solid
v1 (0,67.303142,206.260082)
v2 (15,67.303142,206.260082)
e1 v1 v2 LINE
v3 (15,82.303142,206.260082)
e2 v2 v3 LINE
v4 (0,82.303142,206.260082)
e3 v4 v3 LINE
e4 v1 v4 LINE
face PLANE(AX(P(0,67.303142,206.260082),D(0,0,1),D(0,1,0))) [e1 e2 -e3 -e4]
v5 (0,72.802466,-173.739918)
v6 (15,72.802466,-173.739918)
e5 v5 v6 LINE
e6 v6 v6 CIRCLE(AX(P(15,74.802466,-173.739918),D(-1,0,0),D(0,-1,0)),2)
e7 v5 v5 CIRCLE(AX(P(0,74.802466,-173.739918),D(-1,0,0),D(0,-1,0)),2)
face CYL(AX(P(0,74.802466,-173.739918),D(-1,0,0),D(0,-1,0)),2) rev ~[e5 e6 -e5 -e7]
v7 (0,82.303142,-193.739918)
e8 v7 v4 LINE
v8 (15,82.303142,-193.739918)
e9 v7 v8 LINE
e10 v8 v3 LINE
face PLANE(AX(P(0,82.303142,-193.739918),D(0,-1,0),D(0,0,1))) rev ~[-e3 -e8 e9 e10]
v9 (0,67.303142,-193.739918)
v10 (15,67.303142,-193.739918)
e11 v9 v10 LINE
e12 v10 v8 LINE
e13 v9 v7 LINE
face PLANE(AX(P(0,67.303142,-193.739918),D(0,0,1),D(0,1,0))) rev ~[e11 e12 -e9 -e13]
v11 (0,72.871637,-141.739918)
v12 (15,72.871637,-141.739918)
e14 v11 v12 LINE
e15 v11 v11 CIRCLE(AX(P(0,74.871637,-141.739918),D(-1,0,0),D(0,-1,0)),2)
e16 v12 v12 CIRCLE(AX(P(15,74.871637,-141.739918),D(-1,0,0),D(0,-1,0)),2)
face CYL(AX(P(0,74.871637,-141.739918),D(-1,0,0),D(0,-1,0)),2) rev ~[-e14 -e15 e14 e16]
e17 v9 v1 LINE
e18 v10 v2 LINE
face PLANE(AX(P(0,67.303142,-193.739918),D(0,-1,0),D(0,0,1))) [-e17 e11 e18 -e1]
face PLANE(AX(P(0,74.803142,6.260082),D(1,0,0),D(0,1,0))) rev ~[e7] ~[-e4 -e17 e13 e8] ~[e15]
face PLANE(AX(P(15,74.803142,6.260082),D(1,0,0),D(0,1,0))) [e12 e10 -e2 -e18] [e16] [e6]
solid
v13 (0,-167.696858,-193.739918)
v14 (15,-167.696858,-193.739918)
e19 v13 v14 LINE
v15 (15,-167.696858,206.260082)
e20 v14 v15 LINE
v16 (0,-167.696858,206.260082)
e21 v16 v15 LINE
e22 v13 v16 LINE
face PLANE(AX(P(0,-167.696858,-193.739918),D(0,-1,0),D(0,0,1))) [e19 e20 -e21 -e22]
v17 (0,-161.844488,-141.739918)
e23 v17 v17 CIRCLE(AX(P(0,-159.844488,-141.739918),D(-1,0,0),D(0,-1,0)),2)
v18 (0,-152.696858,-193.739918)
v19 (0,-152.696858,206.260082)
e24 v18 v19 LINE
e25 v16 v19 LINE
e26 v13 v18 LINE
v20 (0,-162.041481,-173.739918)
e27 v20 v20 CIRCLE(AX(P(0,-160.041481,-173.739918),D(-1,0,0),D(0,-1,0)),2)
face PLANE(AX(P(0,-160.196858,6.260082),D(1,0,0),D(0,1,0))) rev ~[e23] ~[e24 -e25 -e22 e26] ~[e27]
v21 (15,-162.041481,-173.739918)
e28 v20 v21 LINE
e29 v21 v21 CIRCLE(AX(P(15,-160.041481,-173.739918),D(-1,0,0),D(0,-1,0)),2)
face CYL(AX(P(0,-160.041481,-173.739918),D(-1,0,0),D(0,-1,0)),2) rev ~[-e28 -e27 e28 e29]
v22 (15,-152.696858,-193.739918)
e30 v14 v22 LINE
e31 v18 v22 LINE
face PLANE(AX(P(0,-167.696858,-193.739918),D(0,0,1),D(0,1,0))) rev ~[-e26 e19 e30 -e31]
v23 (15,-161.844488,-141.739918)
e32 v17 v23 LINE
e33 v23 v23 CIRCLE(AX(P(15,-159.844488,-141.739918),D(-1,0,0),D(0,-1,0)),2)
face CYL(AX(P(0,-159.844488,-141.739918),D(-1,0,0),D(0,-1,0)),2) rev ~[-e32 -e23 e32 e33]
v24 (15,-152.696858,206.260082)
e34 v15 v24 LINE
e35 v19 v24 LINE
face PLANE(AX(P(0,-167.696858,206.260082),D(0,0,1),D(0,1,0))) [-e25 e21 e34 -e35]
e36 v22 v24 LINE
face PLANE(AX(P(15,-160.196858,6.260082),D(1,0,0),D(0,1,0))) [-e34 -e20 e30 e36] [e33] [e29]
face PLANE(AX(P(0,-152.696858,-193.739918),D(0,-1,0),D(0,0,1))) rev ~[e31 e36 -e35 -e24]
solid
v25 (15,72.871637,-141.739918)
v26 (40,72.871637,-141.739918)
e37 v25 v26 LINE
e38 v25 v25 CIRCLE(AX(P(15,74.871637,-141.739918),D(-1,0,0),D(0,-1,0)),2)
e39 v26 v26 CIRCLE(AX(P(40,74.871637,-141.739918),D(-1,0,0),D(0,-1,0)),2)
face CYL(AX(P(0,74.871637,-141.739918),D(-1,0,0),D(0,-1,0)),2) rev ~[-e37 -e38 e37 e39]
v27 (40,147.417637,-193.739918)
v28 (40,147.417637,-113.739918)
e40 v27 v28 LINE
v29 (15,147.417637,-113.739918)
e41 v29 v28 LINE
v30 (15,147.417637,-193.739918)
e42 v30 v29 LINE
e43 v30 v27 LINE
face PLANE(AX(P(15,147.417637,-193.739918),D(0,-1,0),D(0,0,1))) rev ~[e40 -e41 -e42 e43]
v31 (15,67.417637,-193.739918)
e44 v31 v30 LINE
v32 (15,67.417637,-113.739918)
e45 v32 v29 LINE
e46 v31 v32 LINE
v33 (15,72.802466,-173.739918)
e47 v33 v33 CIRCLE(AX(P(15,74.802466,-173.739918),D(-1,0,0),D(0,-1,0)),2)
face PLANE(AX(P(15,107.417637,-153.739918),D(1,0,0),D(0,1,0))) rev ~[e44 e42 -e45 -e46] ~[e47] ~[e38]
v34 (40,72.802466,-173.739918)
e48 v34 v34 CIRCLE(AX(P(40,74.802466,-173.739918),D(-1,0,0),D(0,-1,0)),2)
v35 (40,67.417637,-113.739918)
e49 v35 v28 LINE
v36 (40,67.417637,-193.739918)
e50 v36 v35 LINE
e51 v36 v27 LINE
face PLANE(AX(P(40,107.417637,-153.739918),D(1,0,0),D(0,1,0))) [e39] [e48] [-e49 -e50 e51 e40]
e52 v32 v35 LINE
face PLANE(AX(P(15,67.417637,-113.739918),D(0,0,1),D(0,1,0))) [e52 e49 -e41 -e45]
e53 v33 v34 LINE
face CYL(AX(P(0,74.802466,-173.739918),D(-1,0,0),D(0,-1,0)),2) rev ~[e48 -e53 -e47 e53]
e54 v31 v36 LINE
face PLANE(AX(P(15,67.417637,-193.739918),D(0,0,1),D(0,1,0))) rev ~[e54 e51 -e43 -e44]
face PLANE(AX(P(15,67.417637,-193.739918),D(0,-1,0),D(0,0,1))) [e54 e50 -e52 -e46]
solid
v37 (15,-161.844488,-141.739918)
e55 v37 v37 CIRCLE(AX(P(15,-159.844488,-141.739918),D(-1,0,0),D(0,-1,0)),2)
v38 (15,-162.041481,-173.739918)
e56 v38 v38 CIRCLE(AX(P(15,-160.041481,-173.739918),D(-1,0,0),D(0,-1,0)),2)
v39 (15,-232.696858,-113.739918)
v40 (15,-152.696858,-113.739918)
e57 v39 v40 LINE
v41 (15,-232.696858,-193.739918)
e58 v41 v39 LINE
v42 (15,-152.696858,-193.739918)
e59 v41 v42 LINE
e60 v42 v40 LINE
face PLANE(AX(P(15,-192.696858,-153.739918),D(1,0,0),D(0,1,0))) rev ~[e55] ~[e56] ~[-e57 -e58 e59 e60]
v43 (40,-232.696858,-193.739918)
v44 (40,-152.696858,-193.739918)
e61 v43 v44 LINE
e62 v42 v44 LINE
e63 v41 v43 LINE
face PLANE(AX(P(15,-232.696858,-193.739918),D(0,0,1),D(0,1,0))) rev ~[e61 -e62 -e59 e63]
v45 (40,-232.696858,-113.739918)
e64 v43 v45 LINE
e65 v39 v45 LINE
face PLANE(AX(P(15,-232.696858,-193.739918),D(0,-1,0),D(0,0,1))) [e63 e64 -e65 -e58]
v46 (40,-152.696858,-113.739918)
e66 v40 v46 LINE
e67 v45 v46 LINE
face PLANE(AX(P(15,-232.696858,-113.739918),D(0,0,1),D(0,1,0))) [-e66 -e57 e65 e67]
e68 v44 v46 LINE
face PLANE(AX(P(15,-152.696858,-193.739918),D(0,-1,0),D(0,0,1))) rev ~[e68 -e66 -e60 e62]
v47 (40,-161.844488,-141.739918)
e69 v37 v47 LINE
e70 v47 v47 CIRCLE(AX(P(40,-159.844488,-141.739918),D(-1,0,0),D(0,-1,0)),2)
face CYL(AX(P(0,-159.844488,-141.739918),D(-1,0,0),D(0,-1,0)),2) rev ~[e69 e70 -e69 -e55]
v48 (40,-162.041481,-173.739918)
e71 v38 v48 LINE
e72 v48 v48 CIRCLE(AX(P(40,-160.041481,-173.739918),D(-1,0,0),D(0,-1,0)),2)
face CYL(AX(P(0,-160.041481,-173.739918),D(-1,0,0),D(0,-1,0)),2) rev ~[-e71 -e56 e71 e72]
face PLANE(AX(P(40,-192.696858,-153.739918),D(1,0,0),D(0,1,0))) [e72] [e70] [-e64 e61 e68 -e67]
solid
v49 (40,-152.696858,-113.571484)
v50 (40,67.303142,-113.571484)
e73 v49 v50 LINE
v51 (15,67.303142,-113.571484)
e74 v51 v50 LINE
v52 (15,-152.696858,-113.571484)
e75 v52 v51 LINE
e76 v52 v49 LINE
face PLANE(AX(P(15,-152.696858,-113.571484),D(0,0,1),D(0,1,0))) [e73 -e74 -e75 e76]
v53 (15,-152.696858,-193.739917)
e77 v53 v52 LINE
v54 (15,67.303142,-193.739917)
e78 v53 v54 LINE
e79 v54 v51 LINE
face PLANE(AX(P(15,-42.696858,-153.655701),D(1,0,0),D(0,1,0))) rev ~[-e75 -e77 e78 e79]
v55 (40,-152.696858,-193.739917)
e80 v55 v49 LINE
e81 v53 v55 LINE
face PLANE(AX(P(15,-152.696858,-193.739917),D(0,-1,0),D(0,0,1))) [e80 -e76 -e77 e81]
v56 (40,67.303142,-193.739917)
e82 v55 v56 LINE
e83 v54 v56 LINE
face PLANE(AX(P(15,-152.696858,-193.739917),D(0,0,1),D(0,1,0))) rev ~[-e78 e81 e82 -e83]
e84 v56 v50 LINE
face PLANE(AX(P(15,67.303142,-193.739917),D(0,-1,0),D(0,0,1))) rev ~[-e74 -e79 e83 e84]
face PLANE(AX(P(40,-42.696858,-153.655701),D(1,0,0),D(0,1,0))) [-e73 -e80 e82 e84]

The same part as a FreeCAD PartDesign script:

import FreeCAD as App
import Part
import Sketcher

V = App.Vector
Q = App.Units.Quantity

doc = App.newDocument("Part")
body = doc.addObject("PartDesign::Body", "Body")
body.AllowCompound = True

# Sketch on YZ plane
sketch1 = doc.addObject("Sketcher::SketchObject", "Sketch")
body.addObject(sketch1)
sketch1.AttachmentSupport = (doc.YZ_Plane, [""])
sketch1.MapMode = "FlatFace"
sketch1.addGeometry([
    Part.LineSegment(V(-167.696858, 206.260082, 0), V(-167.696858, -193.739918, 0)),  # 0
    Part.LineSegment(V(-167.696858, -193.739918, 0), V(-152.696858, -193.739918, 0)),  # 1
    Part.LineSegment(V(-152.696858, -193.739918, 0), V(-152.696858, 206.260082, 0)),  # 2
    Part.LineSegment(V(-152.696858, 206.260082, 0), V(-167.696858, 206.260082, 0)),  # 3
    Part.LineSegment(V(67.303142, 206.260082, 0), V(67.303142, -193.739918, 0)),  # 4
    Part.LineSegment(V(67.303142, -193.739918, 0), V(82.303142, -193.739918, 0)),  # 5
    Part.LineSegment(V(82.303142, -193.739918, 0), V(82.303142, 206.260082, 0)),  # 6
    Part.LineSegment(V(82.303142, 206.260082, 0), V(67.303142, 206.260082, 0)),  # 7
], False)
sketch1.addConstraint([
    Sketcher.Constraint("Coincident", 0, 2, 1, 1),
    Sketcher.Constraint("Coincident", 1, 2, 2, 1),
    Sketcher.Constraint("Coincident", 2, 2, 3, 1),
    Sketcher.Constraint("Coincident", 3, 2, 0, 1),
    Sketcher.Constraint("Coincident", 4, 2, 5, 1),
    Sketcher.Constraint("Coincident", 5, 2, 6, 1),
    Sketcher.Constraint("Coincident", 6, 2, 7, 1),
    Sketcher.Constraint("Coincident", 7, 2, 4, 1),
    Sketcher.Constraint("Vertical", 0),
    Sketcher.Constraint("Horizontal", 1),
    Sketcher.Constraint("Vertical", 2),
    Sketcher.Constraint("Horizontal", 3),
    Sketcher.Constraint("Vertical", 4),
    Sketcher.Constraint("Horizontal", 5),
    Sketcher.Constraint("Vertical", 6),
    Sketcher.Constraint("Horizontal", 7),
    Sketcher.Constraint("Horizontal", 1, 2, 4, 2),
    Sketcher.Constraint("Horizontal", 3, 2, 6, 2),
    Sketcher.Constraint("Equal", 3, 5),
    Sketcher.Constraint("DistanceX", 1, 1, 1, 2, Q("15 mm")),
    Sketcher.Constraint("DistanceY", 0, 2, 0, 1, Q("400 mm")),
    Sketcher.Constraint("DistanceX", 1, 2, 4, 2, Q("220 mm")),
    Sketcher.Constraint("DistanceX", 0, 2, -1, 1, Q("167.696858 mm")),
    Sketcher.Constraint("DistanceY", 0, 2, -1, 1, Q("193.739918 mm")),
])
pad1 = doc.addObject("PartDesign::Pad", "Pad")
body.addObject(pad1)
pad1.Profile = sketch1
pad1.Length = 15
body2 = doc.addObject("PartDesign::Body", "Body001")

# Sketch on YZ plane
sketch2 = doc.addObject("Sketcher::SketchObject", "Sketch001")
body2.addObject(sketch2)
sketch2.AttachmentSupport = (doc.getObject("YZ_Plane001"), [""])
sketch2.MapMode = "FlatFace"
sketch2.AttachmentOffset = App.Placement(V(0, 0, 15), App.Rotation())
sketch2.addGeometry([
    Part.LineSegment(V(-152.696858, -113.571484, 0), V(-152.696858, -193.739917, 0)),
    Part.LineSegment(V(-152.696858, -193.739917, 0), V(67.303142, -193.739917, 0)),
    Part.LineSegment(V(67.303142, -193.739917, 0), V(67.303142, -113.571484, 0)),
    Part.LineSegment(V(67.303142, -113.571484, 0), V(-152.696858, -113.571484, 0)),
], False)
sketch2.addConstraint([
    Sketcher.Constraint("Coincident", 0, 2, 1, 1),
    Sketcher.Constraint("Coincident", 1, 2, 2, 1),
    Sketcher.Constraint("Coincident", 2, 2, 3, 1),
    Sketcher.Constraint("Coincident", 3, 2, 0, 1),
    Sketcher.Constraint("Vertical", 0),
    Sketcher.Constraint("Horizontal", 1),
    Sketcher.Constraint("Vertical", 2),
    Sketcher.Constraint("Horizontal", 3),
    Sketcher.Constraint("DistanceX", 1, 1, 1, 2, Q("220 mm")),
    Sketcher.Constraint("DistanceY", 0, 2, 0, 1, Q("80.168433 mm")),
    Sketcher.Constraint("DistanceX", 0, 2, -1, 1, Q("152.696858 mm")),
    Sketcher.Constraint("DistanceY", 0, 2, -1, 1, Q("193.739917 mm")),
])
pad2 = doc.addObject("PartDesign::Pad", "Pad001")
body2.addObject(pad2)
pad2.Profile = sketch2
pad2.Length = 25
body3 = doc.addObject("PartDesign::Body", "Body002")
body3.AllowCompound = True

# Sketch on YZ plane
sketch3 = doc.addObject("Sketcher::SketchObject", "Sketch002")
body3.addObject(sketch3)
sketch3.AttachmentSupport = (doc.getObject("YZ_Plane002"), [""])
sketch3.MapMode = "FlatFace"
sketch3.AttachmentOffset = App.Placement(V(0, 0, 15), App.Rotation())
sketch3.addGeometry([
    Part.LineSegment(V(-232.696858, -113.739918, 0), V(-232.696858, -193.739918, 0)),  # 0
    Part.LineSegment(V(-232.696858, -193.739918, 0), V(-152.696858, -193.739918, 0)),  # 1
    Part.LineSegment(V(-152.696858, -193.739918, 0), V(-152.696858, -113.739918, 0)),  # 2
    Part.LineSegment(V(-152.696858, -113.739918, 0), V(-232.696858, -113.739918, 0)),  # 3
    Part.LineSegment(V(67.417637, -113.739918, 0), V(67.417637, -193.739918, 0)),  # 4
    Part.LineSegment(V(67.417637, -193.739918, 0), V(147.417637, -193.739918, 0)),  # 5
    Part.LineSegment(V(147.417637, -193.739918, 0), V(147.417637, -113.739918, 0)),  # 6
    Part.LineSegment(V(147.417637, -113.739918, 0), V(67.417637, -113.739918, 0)),  # 7
], False)
sketch3.addConstraint([
    Sketcher.Constraint("Coincident", 0, 2, 1, 1),
    Sketcher.Constraint("Coincident", 1, 2, 2, 1),
    Sketcher.Constraint("Coincident", 2, 2, 3, 1),
    Sketcher.Constraint("Coincident", 3, 2, 0, 1),
    Sketcher.Constraint("Coincident", 4, 2, 5, 1),
    Sketcher.Constraint("Coincident", 5, 2, 6, 1),
    Sketcher.Constraint("Coincident", 6, 2, 7, 1),
    Sketcher.Constraint("Coincident", 7, 2, 4, 1),
    Sketcher.Constraint("Vertical", 0),
    Sketcher.Constraint("Horizontal", 1),
    Sketcher.Constraint("Vertical", 2),
    Sketcher.Constraint("Horizontal", 3),
    Sketcher.Constraint("Vertical", 4),
    Sketcher.Constraint("Horizontal", 5),
    Sketcher.Constraint("Vertical", 6),
    Sketcher.Constraint("Horizontal", 7),
    Sketcher.Constraint("Horizontal", 1, 2, 4, 2),
    Sketcher.Constraint("Horizontal", 3, 2, 6, 2),
    Sketcher.Constraint("Equal", 3, 5),
    Sketcher.Constraint("Equal", 7, 0),
    Sketcher.Constraint("DistanceX", 1, 1, 1, 2, Q("80 mm")),
    Sketcher.Constraint("DistanceX", 0, 2, -1, 1, Q("232.696858 mm")),
    Sketcher.Constraint("DistanceY", 2, 2, -1, 1, Q("113.739918 mm")),
    Sketcher.Constraint("DistanceX", -1, 1, 4, 2, Q("67.417637 mm")),
])
pad3 = doc.addObject("PartDesign::Pad", "Pad002")
body3.addObject(pad3)
pad3.Profile = sketch3
pad3.Length = 25
body4 = doc.addObject("PartDesign::Body", "Body003")
body4.AllowCompound = True

# Sketch on YZ plane
sketch4 = doc.addObject("Sketcher::SketchObject", "Sketch003")
body4.addObject(sketch4)
sketch4.AttachmentSupport = (doc.getObject("YZ_Plane003"), [""])
sketch4.MapMode = "FlatFace"
sketch4.addGeometry([
    Part.Circle(V(74.871637, -141.739918, 0), V(0, 0, 1), 2),
    Part.Circle(V(-159.844488, -141.739918, 0), V(0, 0, 1), 2),
    Part.Circle(V(74.802466, -173.739918, 0), V(0, 0, 1), 2),
    Part.Circle(V(-160.041481, -173.739918, 0), V(0, 0, 1), 2),
], False)
sketch4.addConstraint([
    Sketcher.Constraint("Equal", 0, 1),
    Sketcher.Constraint("Equal", 1, 2),
    Sketcher.Constraint("Equal", 2, 3),
    Sketcher.Constraint("Horizontal", 0, 3, 1, 3),
    Sketcher.Constraint("Horizontal", 2, 3, 3, 3),
    Sketcher.Constraint("Diameter", 0, Q("4 mm")),
    Sketcher.Constraint("DistanceY", 2, 3, 0, 3, Q("32 mm")),
    Sketcher.Constraint("DistanceX", 1, 3, -1, 1, Q("159.844488 mm")),
    Sketcher.Constraint("DistanceX", 3, 3, -1, 1, Q("160.041481 mm")),
    Sketcher.Constraint("DistanceX", 2, 3, 0, 3, Q("0.069171 mm")),
    Sketcher.Constraint("DistanceX", 3, 3, 0, 3, Q("234.913118 mm")),
    Sketcher.Constraint("DistanceY", 0, 3, -1, 1, Q("141.739918 mm")),
])
pad4 = doc.addObject("PartDesign::Pad", "Pad003")
body4.addObject(pad4)
pad4.Profile = sketch4
pad4.Length = 100
body.AllowCompound = True
doc.recompute()

body5 = doc.addObject("PartDesign::Body", "Body004")
body5.BaseFeature = body4
boolean = doc.addObject("PartDesign::Boolean", "Boolean")
body.addObject(boolean)
boolean.Type = "Cut"
boolean.addObjects([body5])
doc.recompute()
body3.AllowCompound = True
doc.recompute()

boolean2 = doc.addObject("PartDesign::Boolean", "Boolean001")
body3.addObject(boolean2)
boolean2.Type = "Cut"
boolean2.addObjects([body4])

doc.recompute()
